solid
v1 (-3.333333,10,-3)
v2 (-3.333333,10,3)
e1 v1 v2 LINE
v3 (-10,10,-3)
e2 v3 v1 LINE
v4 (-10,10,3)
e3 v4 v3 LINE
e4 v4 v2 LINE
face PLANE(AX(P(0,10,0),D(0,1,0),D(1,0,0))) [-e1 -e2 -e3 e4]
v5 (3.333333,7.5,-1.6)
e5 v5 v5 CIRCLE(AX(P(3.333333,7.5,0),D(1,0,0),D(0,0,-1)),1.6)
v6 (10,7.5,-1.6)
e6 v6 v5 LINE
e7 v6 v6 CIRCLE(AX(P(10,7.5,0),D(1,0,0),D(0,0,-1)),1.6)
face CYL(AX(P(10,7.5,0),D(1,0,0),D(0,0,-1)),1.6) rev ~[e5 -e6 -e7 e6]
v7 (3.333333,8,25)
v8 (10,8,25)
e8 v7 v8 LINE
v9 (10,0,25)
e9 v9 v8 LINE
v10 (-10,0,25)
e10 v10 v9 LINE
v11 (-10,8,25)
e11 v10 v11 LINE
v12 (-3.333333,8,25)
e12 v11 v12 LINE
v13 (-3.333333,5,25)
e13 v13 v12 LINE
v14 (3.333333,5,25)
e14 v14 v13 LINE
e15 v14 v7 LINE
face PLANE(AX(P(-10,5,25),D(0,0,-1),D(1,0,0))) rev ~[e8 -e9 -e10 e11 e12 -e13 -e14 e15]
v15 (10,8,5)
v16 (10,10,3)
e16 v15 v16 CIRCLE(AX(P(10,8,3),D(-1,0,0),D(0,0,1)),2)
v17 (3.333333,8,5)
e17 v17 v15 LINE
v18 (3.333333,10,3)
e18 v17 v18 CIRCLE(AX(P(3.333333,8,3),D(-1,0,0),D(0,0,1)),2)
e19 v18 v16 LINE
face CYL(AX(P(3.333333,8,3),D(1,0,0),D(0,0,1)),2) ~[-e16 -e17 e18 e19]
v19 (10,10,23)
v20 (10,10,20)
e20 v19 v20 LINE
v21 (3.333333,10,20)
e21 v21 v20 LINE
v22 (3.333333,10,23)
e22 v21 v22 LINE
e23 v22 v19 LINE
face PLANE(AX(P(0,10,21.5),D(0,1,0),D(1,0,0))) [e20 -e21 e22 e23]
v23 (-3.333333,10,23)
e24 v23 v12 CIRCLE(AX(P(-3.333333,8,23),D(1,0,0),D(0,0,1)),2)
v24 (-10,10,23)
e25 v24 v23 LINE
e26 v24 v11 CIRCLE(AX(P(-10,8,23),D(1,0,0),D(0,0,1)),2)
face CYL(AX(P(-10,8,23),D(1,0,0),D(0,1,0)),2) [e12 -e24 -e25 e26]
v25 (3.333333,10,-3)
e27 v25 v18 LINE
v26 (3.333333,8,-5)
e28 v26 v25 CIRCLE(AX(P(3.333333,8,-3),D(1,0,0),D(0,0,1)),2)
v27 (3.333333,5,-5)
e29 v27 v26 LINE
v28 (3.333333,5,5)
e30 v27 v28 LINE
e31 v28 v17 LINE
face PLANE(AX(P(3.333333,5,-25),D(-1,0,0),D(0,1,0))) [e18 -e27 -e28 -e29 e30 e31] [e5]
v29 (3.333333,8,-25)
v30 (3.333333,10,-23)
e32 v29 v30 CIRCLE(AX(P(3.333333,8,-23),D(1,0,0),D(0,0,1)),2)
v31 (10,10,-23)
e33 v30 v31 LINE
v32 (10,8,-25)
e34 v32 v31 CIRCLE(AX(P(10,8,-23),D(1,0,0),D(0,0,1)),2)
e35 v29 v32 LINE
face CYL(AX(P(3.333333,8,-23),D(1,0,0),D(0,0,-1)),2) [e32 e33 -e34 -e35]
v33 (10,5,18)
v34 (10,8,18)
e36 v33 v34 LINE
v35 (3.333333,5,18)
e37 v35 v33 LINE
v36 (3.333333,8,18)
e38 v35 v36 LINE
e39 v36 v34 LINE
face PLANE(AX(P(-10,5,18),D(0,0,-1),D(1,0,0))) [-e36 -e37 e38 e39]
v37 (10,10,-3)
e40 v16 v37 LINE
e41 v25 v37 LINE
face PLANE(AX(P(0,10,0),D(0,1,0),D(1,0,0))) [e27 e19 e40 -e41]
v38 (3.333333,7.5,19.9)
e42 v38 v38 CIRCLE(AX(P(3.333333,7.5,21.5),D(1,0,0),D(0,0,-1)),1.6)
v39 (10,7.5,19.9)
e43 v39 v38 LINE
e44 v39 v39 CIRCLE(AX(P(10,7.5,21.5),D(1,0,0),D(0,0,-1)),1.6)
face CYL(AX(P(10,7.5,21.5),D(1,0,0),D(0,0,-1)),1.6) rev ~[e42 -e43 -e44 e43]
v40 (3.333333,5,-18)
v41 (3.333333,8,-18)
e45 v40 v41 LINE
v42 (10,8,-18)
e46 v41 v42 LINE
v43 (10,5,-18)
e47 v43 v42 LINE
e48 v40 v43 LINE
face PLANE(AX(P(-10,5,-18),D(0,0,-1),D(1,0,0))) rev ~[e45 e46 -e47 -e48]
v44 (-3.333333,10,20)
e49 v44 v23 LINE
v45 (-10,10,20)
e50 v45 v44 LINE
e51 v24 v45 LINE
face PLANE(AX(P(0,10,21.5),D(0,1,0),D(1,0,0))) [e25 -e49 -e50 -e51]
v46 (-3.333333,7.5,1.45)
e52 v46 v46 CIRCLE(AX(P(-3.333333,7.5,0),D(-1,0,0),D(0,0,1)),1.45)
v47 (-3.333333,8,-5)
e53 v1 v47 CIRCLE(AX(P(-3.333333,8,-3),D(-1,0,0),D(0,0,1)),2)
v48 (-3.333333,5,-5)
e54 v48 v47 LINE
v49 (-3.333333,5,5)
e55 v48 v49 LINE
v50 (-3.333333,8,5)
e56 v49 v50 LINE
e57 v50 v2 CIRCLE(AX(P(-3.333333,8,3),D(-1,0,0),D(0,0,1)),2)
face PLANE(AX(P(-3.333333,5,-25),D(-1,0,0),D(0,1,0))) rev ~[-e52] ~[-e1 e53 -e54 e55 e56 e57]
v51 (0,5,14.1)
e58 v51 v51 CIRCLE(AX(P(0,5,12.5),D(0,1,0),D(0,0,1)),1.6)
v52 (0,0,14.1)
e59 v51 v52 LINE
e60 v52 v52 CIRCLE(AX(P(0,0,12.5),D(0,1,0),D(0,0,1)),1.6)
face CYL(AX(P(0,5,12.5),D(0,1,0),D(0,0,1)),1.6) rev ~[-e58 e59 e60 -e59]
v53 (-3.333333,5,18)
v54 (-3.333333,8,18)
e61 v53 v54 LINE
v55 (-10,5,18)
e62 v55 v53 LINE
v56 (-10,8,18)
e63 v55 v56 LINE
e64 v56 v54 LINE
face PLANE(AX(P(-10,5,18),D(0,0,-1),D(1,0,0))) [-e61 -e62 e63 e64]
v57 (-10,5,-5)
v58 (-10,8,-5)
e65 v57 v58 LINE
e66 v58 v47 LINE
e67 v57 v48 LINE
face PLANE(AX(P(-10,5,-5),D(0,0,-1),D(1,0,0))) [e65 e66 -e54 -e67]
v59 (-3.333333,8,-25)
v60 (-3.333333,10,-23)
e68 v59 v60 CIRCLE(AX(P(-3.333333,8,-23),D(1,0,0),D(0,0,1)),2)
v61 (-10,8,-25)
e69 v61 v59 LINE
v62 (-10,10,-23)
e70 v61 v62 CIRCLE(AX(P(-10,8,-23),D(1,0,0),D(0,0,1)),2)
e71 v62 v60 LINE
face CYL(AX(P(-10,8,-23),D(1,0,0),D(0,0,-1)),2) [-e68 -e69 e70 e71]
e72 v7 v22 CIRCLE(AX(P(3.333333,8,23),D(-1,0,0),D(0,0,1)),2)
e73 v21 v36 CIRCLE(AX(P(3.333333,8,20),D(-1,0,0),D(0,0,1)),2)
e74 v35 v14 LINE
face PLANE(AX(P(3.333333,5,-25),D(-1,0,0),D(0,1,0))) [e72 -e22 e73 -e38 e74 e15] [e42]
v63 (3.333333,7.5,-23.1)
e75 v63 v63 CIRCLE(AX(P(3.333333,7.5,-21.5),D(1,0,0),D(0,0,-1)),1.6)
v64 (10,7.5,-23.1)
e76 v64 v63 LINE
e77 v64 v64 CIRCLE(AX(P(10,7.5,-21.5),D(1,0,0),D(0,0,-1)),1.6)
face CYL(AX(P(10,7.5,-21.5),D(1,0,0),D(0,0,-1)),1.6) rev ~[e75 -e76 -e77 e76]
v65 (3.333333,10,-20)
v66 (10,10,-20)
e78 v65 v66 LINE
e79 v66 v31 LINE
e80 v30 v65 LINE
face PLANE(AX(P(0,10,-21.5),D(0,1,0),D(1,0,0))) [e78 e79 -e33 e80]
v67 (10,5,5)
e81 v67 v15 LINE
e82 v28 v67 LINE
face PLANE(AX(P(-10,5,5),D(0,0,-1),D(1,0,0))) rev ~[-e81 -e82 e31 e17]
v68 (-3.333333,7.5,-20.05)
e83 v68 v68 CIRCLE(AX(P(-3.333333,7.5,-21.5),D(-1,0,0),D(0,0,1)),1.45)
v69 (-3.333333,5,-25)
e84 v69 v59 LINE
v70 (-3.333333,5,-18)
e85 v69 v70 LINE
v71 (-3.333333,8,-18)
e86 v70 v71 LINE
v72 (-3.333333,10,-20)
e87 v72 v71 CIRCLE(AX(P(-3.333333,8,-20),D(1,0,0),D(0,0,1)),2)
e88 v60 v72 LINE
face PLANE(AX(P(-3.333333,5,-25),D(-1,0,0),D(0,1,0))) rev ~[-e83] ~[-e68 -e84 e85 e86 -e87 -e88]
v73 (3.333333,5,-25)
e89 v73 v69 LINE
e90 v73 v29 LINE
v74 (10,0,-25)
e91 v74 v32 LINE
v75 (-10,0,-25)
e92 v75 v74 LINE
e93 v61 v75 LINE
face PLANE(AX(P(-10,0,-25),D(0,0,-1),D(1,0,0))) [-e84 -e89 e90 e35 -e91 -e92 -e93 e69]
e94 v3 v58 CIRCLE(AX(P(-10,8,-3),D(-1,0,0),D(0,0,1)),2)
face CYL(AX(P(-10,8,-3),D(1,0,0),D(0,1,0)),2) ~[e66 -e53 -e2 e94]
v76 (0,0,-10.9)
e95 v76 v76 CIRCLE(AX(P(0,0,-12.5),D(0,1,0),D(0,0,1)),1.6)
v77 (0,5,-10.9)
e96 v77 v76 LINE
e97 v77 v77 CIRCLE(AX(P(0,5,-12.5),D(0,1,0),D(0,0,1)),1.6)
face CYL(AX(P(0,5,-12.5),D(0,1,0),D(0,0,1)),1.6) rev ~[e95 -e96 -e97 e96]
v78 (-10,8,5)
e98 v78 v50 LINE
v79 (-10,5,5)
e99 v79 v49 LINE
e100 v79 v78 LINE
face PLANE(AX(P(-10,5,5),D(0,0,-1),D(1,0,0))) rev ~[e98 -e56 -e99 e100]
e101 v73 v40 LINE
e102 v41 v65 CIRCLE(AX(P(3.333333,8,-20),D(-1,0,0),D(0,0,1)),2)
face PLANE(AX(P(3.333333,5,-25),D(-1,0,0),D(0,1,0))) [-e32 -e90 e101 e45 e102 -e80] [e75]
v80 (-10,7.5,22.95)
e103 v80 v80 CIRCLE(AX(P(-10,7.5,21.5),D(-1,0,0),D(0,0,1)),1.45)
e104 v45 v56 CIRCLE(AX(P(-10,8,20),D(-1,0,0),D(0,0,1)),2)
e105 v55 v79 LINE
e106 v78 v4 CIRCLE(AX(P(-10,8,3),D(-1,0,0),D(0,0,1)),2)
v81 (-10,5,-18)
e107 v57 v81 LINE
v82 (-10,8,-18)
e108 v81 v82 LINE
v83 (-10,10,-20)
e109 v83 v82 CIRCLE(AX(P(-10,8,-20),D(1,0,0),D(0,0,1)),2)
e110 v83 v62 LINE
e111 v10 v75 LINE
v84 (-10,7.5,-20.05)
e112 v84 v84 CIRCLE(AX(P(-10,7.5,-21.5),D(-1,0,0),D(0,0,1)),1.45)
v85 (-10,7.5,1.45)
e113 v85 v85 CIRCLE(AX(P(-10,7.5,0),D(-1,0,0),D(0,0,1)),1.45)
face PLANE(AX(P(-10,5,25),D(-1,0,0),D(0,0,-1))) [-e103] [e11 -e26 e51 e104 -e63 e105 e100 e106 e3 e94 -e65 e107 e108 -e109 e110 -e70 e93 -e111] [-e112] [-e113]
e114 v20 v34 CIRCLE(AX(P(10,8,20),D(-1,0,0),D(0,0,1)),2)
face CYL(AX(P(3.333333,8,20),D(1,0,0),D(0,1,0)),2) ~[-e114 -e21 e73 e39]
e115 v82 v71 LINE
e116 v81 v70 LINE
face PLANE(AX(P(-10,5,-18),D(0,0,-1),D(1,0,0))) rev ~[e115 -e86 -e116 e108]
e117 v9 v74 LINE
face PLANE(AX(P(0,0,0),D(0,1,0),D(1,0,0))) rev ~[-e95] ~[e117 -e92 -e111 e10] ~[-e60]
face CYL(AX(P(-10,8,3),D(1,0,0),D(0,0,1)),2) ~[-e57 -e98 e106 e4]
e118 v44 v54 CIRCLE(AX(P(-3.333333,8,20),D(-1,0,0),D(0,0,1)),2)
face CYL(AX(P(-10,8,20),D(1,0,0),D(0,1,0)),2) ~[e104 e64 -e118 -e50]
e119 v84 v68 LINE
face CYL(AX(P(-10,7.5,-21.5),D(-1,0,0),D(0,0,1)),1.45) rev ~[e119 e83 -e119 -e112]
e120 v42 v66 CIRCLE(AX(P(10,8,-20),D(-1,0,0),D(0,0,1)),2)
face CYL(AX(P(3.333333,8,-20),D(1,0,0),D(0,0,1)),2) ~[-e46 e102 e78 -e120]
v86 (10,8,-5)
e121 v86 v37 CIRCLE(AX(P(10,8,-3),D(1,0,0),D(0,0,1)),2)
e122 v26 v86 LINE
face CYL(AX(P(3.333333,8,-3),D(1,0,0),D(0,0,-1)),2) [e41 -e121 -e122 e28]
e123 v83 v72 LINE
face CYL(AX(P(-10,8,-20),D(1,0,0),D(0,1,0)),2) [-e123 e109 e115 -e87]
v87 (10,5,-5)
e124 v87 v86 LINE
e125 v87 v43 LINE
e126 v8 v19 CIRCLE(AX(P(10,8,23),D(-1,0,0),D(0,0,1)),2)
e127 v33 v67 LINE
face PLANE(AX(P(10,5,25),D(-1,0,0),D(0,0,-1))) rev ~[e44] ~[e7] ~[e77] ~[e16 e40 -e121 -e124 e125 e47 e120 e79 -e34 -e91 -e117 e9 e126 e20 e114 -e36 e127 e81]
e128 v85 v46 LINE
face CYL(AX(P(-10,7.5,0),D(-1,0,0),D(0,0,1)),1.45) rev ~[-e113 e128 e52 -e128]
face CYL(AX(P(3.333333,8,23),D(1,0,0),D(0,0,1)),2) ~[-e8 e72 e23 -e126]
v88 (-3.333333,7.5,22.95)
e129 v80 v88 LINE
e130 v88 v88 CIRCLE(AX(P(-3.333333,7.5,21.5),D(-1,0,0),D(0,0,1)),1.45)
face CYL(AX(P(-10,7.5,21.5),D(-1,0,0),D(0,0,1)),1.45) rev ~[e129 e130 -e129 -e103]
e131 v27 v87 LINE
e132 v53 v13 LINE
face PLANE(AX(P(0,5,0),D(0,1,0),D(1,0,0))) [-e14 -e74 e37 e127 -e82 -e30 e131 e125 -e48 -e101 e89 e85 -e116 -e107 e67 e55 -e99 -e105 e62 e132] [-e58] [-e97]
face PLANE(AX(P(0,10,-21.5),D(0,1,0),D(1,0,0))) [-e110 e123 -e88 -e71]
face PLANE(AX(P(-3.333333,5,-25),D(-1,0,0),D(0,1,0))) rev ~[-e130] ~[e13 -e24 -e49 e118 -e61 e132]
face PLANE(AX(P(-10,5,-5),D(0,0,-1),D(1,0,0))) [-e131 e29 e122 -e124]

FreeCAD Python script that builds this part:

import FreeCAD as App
import Part
import Sketcher
from FreeCAD import Vector


def edges_at(feature, points):
    """Names of the edges that pass closest to the given points."""
    edges = feature.Shape.Edges
    near = lambda p: min(range(len(edges)), key=lambda i: edges[i].distToShape(Part.Vertex(*p))[0])
    return sorted({f"Edge{near(p) + 1}" for p in points})


def add_polygon(sketch, points):
    """Adds a closed chain of lines whose ends are joined by coincident constraints."""
    first, n = sketch.GeometryCount, len(points)
    for a, b in zip(points, points[1:] + points[:1]):
        sketch.addGeometry(Part.LineSegment(App.Vector(*a, 0), App.Vector(*b, 0)), False)
    for i in range(n):
        sketch.addConstraint(Sketcher.Constraint("Coincident", first + i, 2, first + (i + 1) % n, 1))

doc = App.newDocument("Part")
body = doc.addObject("PartDesign::Body", "Body")

# Sketch on XZ plane
sketch1 = body.newObject("Sketcher::SketchObject", "Sketch")
sketch1.AttachmentSupport = (doc.getObject("XZ_Plane"), [""])
sketch1.MapMode = "FlatFace"
add_polygon(sketch1, [(-10, -25), (-10, 25), (10, 25), (10, -25)])  # lines 0-3
sketch1.addConstraint(Sketcher.Constraint("Vertical", 0))
sketch1.addConstraint(Sketcher.Constraint("Horizontal", 1))
sketch1.addConstraint(Sketcher.Constraint("Vertical", 2))
sketch1.addConstraint(Sketcher.Constraint("Horizontal", 3))
sketch1.addConstraint(Sketcher.Constraint("Symmetric", 0, 2, 2, 2, -1, 1))
sketch1.addConstraint(Sketcher.Constraint("DistanceX", 1, 1, 1, 2, 20.0))
sketch1.addConstraint(Sketcher.Constraint("DistanceY", 0, 1, 0, 2, 50.0))
pad1 = body.newObject("PartDesign::Pad", "Pad")
pad1.Profile = sketch1
pad1.Length = 5
pad1.Reversed = True

# Sketch on XZ plane
sketch2 = body.newObject("Sketcher::SketchObject", "Sketch001")
sketch2.AttachmentSupport = (doc.getObject("XZ_Plane"), [""])
sketch2.MapMode = "FlatFace"
sketch2.AttachmentOffset = App.Placement(Vector(0, 0, -5), App.Rotation())
sketch2.addGeometry(Part.Circle(Vector(0, -12.5, 0), Vector(0, 0, 1), 1.6), False)
sketch2.addGeometry(Part.Circle(Vector(0, 12.5, 0), Vector(0, 0, 1), 1.6), False)
sketch2.addConstraint(Sketcher.Constraint("Equal", 0, 1))
sketch2.addConstraint(Sketcher.Constraint("Symmetric", 0, 3, 1, 3, -1, 1))
sketch2.addConstraint(Sketcher.Constraint("PointOnObject", 0, 3, -2))
sketch2.addConstraint(Sketcher.Constraint("Diameter", 0, 3.2))
sketch2.addConstraint(Sketcher.Constraint("DistanceY", 0, 3, 1, 3, 25.0))
pocket1 = body.newObject("PartDesign::Pocket", "Pocket")
pocket1.Profile = sketch2
pocket1.Type = "ThroughAll"
pocket1.Reversed = True

# Sketch on XZ plane
sketch3 = body.newObject("Sketcher::SketchObject", "Sketch002")
sketch3.AttachmentSupport = (doc.getObject("XZ_Plane"), [""])
sketch3.MapMode = "FlatFace"
sketch3.AttachmentOffset = App.Placement(Vector(0, 0, -5), App.Rotation())
add_polygon(sketch3, [(-10, -5), (-10, 5), (10, 5), (10, -5)])  # lines 0-3
add_polygon(sketch3, [(-10, 18), (-10, 25), (10, 25), (10, 18)])  # lines 4-7
add_polygon(sketch3, [(-10, -25), (-10, -18), (10, -18), (10, -25)])  # lines 8-11
sketch3.addConstraint(Sketcher.Constraint("Vertical", 0))
sketch3.addConstraint(Sketcher.Constraint("Horizontal", 1))
sketch3.addConstraint(Sketcher.Constraint("Vertical", 2))
sketch3.addConstraint(Sketcher.Constraint("Horizontal", 3))
sketch3.addConstraint(Sketcher.Constraint("Vertical", 4))
sketch3.addConstraint(Sketcher.Constraint("Horizontal", 5))
sketch3.addConstraint(Sketcher.Constraint("Vertical", 6))
sketch3.addConstraint(Sketcher.Constraint("Horizontal", 7))
sketch3.addConstraint(Sketcher.Constraint("Vertical", 8))
sketch3.addConstraint(Sketcher.Constraint("Horizontal", 9))
sketch3.addConstraint(Sketcher.Constraint("Vertical", 10))
sketch3.addConstraint(Sketcher.Constraint("Horizontal", 11))
sketch3.addConstraint(Sketcher.Constraint("Symmetric", 0, 2, 2, 2, -1, 1))
sketch3.addConstraint(Sketcher.Constraint("Symmetric", 6, 2, 8, 2, -1, 1))
sketch3.addConstraint(Sketcher.Constraint("Symmetric", 4, 2, 10, 2, -1, 1))
sketch3.addConstraint(Sketcher.Constraint("Vertical", 3, 2, 4, 2))
sketch3.addConstraint(Sketcher.Constraint("Vertical", 2, 2, 5, 2))
sketch3.addConstraint(Sketcher.Constraint("DistanceX", 1, 1, 1, 2, 20.0))
sketch3.addConstraint(Sketcher.Constraint("DistanceY", 0, 1, 0, 2, 10.0))
sketch3.addConstraint(Sketcher.Constraint("DistanceY", 4, 1, 4, 2, 7.0))
sketch3.addConstraint(Sketcher.Constraint("DistanceY", -1, 1, 4, 2, 25.0))
pad2 = body.newObject("PartDesign::Pad", "Pad001")
pad2.Profile = sketch3
pad2.Length = 5
pad2.Reversed = True

# Sketch on YZ plane
sketch4 = body.newObject("Sketcher::SketchObject", "Sketch003")
sketch4.AttachmentSupport = (doc.getObject("YZ_Plane"), [""])
sketch4.MapMode = "FlatFace"
sketch4.AttachmentOffset = App.Placement(Vector(0, 0, -10), App.Rotation())
sketch4.addGeometry(Part.Circle(Vector(7.5, -21.5, 0), Vector(0, 0, 1), 1.4), False)
sketch4.addGeometry(Part.Circle(Vector(7.5, 0, 0), Vector(0, 0, 1), 1.4), False)
sketch4.addGeometry(Part.Circle(Vector(7.5, 21.5, 0), Vector(0, 0, 1), 1.4), False)
sketch4.addConstraint(Sketcher.Constraint("Equal", 0, 1))
sketch4.addConstraint(Sketcher.Constraint("Equal", 1, 2))
sketch4.addConstraint(Sketcher.Constraint("Symmetric", 0, 3, 2, 3, -1))
sketch4.addConstraint(Sketcher.Constraint("PointOnObject", 1, 3, -1))
sketch4.addConstraint(Sketcher.Constraint("Vertical", 0, 3, 1, 3))
sketch4.addConstraint(Sketcher.Constraint("Diameter", 0, 2.9))
sketch4.addConstraint(Sketcher.Constraint("DistanceY", 0, 3, 2, 3, 43.0))
sketch4.addConstraint(Sketcher.Constraint("DistanceX", -1, 1, 0, 3, 7.5))
pocket2 = body.newObject("PartDesign::Pocket", "Pocket001")
pocket2.Profile = sketch4
pocket2.Type = "ThroughAll"
pocket2.Reversed = True

# Sketch on XY plane
sketch5 = body.newObject("Sketcher::SketchObject", "Sketch004")
sketch5.AttachmentSupport = (doc.getObject("XY_Plane"), [""])
sketch5.MapMode = "FlatFace"
sketch5.AttachmentOffset = App.Placement(Vector(0, 0, -25), App.Rotation())
add_polygon(sketch5, [(3, 10), (3, 5), (-3, 5), (-3, 10)])  # lines 0-3
sketch5.addConstraint(Sketcher.Constraint("Vertical", 0))
sketch5.addConstraint(Sketcher.Constraint("Horizontal", 1))
sketch5.addConstraint(Sketcher.Constraint("Vertical", 2))
sketch5.addConstraint(Sketcher.Constraint("Horizontal", 3))
sketch5.addConstraint(Sketcher.Constraint("DistanceY", 0, 2, 0, 1, 5.0))
sketch5.addConstraint(Sketcher.Constraint("DistanceY", -1, 1, 0, 2, 5.0))
sketch5.addConstraint(Sketcher.Constraint("DistanceX", 1, 2, 1, 1, 6.666667))
sketch5.addConstraint(Sketcher.Constraint("DistanceX", -1, 1, 0, 2, 3.333333))
pocket3 = body.newObject("PartDesign::Pocket", "Pocket002")
pocket3.Profile = sketch5
pocket3.Type = "ThroughAll"
pocket3.Reversed = True

# Sketch on YZ plane
sketch6 = body.newObject("Sketcher::SketchObject", "Sketch005")
sketch6.AttachmentSupport = (doc.getObject("YZ_Plane"), [""])
sketch6.MapMode = "FlatFace"
sketch6.AttachmentOffset = App.Placement(Vector(0, 0, 10), App.Rotation())
sketch6.addGeometry(Part.Circle(Vector(7.5, -21.5, 0), Vector(0, 0, 1), 1.6), False)
sketch6.addConstraint(Sketcher.Constraint("Diameter", 0, 3.2))
sketch6.addConstraint(Sketcher.Constraint("DistanceX", -1, 1, 0, 3, 7.5))
sketch6.addConstraint(Sketcher.Constraint("DistanceY", 0, 3, -1, 1, 21.5))
pocket4 = body.newObject("PartDesign::Pocket", "Pocket003")
pocket4.Profile = sketch6
pocket4.Length = 6.666667

# Sketch on YZ plane
sketch7 = body.newObject("Sketcher::SketchObject", "Sketch006")
sketch7.AttachmentSupport = (doc.getObject("YZ_Plane"), [""])
sketch7.MapMode = "FlatFace"
sketch7.AttachmentOffset = App.Placement(Vector(0, 0, 10), App.Rotation())
sketch7.addGeometry(Part.Circle(Vector(7.5, 0, 0), Vector(0, 0, 1), 1.6), False)
sketch7.addConstraint(Sketcher.Constraint("PointOnObject", 0, 3, -1))
sketch7.addConstraint(Sketcher.Constraint("Diameter", 0, 3.2))
sketch7.addConstraint(Sketcher.Constraint("DistanceX", -1, 1, 0, 3, 7.5))
pocket5 = body.newObject("PartDesign::Pocket", "Pocket004")
pocket5.Profile = sketch7
pocket5.Length = 6.666667

# Sketch on YZ plane
sketch8 = body.newObject("Sketcher::SketchObject", "Sketch007")
sketch8.AttachmentSupport = (doc.getObject("YZ_Plane"), [""])
sketch8.MapMode = "FlatFace"
sketch8.AttachmentOffset = App.Placement(Vector(0, 0, 10), App.Rotation())
sketch8.addGeometry(Part.Circle(Vector(7.5, 21.5, 0), Vector(0, 0, 1), 1.6), False)
sketch8.addConstraint(Sketcher.Constraint("Diameter", 0, 3.2))
sketch8.addConstraint(Sketcher.Constraint("DistanceX", -1, 1, 0, 3, 7.5))
sketch8.addConstraint(Sketcher.Constraint("DistanceY", -1, 1, 0, 3, 21.5))
pocket6 = body.newObject("PartDesign::Pocket", "Pocket005")
pocket6.Profile = sketch8
pocket6.Length = 6.666667
doc.recompute()

fillet = body.newObject("PartDesign::Fillet", "Fillet")
fillet.Base = (pocket6, edges_at(pocket6, [
    (6.667, 10, -25),
    (-6.667, 10, -18),
    (6.667, 10, 18),
    (-6.667, 10, 25),
    (6.667, 10, -5),
    (-6.667, 10, 5),
    (-6.667, 10, -25),
    (6.667, 10, -18),
    (-6.667, 10, 18),
    (6.667, 10, 25),
    (-6.667, 10, -5),
    (6.667, 10, 5),
]))
fillet.Radius = 2

doc.recompute()
